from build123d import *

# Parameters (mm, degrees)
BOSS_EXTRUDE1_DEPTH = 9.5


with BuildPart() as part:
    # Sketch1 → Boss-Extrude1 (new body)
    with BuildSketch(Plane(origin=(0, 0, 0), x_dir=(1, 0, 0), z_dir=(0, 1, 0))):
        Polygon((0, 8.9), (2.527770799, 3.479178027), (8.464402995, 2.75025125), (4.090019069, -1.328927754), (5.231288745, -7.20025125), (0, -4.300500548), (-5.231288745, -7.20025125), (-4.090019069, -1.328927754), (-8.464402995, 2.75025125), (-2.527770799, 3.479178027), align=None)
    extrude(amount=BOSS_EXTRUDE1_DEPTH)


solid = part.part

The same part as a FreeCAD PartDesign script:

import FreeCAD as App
import Part
import Sketcher

V = App.Vector
Q = App.Units.Quantity


def add_polygon(sketch, points):
    """Adds a closed chain of lines whose ends are joined by coincident constraints."""
    first, n = sketch.GeometryCount, len(points)
    for a, b in zip(points, points[1:] + points[:1]):
        sketch.addGeometry(Part.LineSegment(App.Vector(*a, 0), App.Vector(*b, 0)), False)
    for i in range(n):
        sketch.addConstraint(Sketcher.Constraint("Coincident", first + i, 2, first + (i + 1) % n, 1))

doc = App.newDocument("Part")
body = doc.addObject("PartDesign::Body", "Body")

sketch1 = doc.addObject("Sketcher::SketchObject", "Sketch")
body.addObject(sketch1)
sketch1.AttachmentSupport = (doc.XZ_Plane, [""])
sketch1.MapMode = "FlatFace"
add_polygon(sketch1, [(3, -3), (0, -9), (-3, -3), (-8, -3), (-4, 1), (-5, 7), (0, 4), (5, 7), (4, 1), (8, -3)])
sketch1.addConstraint(Sketcher.Constraint("Symmetric", 4, 2, 6, 2, -2))
sketch1.addConstraint(Sketcher.Constraint("Symmetric", 3, 2, 7, 2, -2))
sketch1.addConstraint(Sketcher.Constraint("Symmetric", 2, 2, 8, 2, -2))
sketch1.addConstraint(Sketcher.Constraint("Symmetric", 1, 2, 9, 2, -2))
sketch1.addConstraint(Sketcher.Constraint("PointOnObject", 0, 2, -2))
sketch1.addConstraint(Sketcher.Constraint("PointOnObject", 5, 2, -2))
sketch1.addConstraint(Sketcher.Constraint("Equal", 1, 2))
sketch1.addConstraint(Sketcher.Constraint("Equal", 2, 3))
sketch1.addConstraint(Sketcher.Constraint("Equal", 3, 4))
sketch1.addConstraint(Sketcher.Constraint("Equal", 4, 5))
sketch1.addConstraint(Sketcher.Constraint("Angle", 0, Q("-115 deg")))
sketch1.addConstraint(Sketcher.Constraint("Angle", 2, Q("173 deg")))
sketch1.addConstraint(Sketcher.Constraint("Angle", 3, Q("43 deg")))
sketch1.addConstraint(Sketcher.Constraint("Angle", 4, Q("101 deg")))
sketch1.addConstraint(Sketcher.Constraint("DistanceY", 0, 2, -1, 1, 8.9))
sketch1.addConstraint(Sketcher.Constraint("DistanceY", -1, 1, 5, 2, 4.300501))
pad1 = doc.addObject("PartDesign::Pad", "Pad")
body.addObject(pad1)
pad1.Profile = sketch1
pad1.Length = 9.5
pad1.Reversed = True

doc.recompute()
